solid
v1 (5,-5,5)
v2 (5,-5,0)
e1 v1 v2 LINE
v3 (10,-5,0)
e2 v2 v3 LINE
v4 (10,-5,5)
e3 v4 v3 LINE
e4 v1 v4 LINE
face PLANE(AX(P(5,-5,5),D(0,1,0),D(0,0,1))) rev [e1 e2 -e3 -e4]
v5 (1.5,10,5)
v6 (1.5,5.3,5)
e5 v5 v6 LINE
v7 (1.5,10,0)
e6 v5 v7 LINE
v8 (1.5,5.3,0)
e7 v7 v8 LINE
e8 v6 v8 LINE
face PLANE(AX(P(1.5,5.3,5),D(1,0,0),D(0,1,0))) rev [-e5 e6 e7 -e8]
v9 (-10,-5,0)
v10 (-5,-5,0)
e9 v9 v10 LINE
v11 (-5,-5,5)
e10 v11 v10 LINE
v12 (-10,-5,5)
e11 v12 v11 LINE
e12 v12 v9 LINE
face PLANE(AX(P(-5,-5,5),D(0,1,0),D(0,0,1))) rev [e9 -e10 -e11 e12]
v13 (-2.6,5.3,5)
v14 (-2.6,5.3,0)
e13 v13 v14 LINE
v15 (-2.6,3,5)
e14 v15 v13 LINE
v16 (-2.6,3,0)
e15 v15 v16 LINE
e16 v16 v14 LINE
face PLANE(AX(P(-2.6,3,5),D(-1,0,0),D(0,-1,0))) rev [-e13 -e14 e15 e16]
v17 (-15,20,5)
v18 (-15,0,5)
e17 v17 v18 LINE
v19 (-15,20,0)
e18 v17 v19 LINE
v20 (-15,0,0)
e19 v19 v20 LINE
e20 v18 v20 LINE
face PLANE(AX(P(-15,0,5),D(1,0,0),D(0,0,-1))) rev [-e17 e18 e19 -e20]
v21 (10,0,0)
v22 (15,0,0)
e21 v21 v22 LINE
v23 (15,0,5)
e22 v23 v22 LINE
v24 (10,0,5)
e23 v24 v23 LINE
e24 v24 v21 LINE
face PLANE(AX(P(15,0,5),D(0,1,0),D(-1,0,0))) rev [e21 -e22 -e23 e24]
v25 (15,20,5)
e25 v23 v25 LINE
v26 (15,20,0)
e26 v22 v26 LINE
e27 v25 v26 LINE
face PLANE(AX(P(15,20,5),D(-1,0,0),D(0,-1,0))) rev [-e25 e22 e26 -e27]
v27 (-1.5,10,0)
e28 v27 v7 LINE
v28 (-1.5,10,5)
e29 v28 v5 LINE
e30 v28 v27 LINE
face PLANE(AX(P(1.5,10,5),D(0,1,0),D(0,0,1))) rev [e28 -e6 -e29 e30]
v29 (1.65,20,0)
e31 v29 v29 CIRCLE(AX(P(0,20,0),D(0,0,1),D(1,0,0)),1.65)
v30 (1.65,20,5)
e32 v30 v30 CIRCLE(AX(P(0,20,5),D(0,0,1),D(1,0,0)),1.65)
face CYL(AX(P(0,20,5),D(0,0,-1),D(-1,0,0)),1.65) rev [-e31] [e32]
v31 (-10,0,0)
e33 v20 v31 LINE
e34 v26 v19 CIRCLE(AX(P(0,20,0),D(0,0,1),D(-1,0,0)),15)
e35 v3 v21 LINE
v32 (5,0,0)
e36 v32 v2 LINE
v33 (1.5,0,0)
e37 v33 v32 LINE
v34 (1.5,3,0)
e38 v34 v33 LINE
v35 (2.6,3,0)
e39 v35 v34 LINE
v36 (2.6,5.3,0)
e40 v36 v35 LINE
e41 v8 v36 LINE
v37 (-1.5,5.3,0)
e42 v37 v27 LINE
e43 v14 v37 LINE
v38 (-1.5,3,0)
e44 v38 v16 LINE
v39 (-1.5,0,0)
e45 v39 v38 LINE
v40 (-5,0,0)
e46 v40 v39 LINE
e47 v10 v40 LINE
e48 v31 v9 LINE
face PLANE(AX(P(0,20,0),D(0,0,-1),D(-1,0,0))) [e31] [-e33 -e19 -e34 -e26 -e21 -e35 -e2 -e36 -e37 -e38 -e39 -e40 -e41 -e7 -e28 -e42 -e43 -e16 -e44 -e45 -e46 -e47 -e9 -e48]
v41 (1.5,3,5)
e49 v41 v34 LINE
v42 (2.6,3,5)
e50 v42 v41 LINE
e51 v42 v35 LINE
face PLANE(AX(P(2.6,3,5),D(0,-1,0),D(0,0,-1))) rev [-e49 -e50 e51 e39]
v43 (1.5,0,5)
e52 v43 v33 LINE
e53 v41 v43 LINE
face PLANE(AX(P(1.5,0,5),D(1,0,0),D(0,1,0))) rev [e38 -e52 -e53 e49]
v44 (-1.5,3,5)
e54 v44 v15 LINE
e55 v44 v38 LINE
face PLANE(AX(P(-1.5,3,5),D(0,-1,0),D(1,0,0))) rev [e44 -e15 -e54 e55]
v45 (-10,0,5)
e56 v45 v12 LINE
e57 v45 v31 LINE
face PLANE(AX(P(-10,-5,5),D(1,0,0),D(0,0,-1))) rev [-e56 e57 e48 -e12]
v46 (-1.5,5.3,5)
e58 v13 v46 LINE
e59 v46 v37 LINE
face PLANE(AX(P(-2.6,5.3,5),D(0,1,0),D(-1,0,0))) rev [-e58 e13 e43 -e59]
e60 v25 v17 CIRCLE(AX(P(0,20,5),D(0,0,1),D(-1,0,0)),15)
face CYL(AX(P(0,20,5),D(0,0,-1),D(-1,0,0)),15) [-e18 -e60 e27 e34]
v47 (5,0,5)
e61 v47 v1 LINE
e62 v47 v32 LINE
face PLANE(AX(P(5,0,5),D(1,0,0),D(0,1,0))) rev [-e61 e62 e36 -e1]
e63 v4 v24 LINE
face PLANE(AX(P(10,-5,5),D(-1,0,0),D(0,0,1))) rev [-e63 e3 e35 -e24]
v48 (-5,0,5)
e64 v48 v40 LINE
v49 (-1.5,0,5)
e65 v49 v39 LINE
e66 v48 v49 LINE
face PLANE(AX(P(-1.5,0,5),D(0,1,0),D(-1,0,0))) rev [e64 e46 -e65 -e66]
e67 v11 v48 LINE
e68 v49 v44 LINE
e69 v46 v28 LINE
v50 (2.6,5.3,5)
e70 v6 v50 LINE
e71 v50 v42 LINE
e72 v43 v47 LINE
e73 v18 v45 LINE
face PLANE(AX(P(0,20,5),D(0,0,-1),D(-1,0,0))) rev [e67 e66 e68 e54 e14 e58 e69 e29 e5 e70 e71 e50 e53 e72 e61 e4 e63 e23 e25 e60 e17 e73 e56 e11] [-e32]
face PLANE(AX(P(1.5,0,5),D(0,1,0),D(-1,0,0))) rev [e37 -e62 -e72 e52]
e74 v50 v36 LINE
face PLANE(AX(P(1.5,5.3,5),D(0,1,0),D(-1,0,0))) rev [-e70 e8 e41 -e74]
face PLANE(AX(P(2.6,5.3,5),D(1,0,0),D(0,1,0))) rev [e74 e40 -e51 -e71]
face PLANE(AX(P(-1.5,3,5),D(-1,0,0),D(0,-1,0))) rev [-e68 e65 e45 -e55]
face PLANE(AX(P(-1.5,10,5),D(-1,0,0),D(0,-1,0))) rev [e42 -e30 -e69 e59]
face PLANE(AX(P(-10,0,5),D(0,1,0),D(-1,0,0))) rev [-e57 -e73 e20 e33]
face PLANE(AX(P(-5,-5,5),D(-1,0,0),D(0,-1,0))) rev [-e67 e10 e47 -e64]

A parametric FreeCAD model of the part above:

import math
import FreeCAD as App
import Part
import Sketcher

V = App.Vector

doc = App.newDocument("Part")
params = doc.addObject("Spreadsheet::Sheet", "Params")
for row, (alias, value) in enumerate([
    ("sketch1_radius", "15 mm"),
    ("sketch1_diameter", "3.3 mm"),
    ("sketch1_width", "5 mm"),
    ("sketch1_width2", "3 mm"),
    ("sketch1_height", "20 mm"),
    ("pad1_length", "5 mm"),
], start=1):
    params.set(f"A{row}", alias)
    params.set(f"B{row}", "=" + value)
    params.setAlias(f"B{row}", alias)

body = doc.addObject("PartDesign::Body", "Body")

# Sketch on XY plane
sketch1 = body.newObject("Sketcher::SketchObject", "Sketch")
sketch1.AttachmentSupport = (doc.getObject("XY_Plane"), [""])
sketch1.MapMode = "FlatFace"
sketch1.addGeometry(Part.LineSegment(V(-15, 0, 0), V(-10, 0, 0)), False)
sketch1.addGeometry(Part.LineSegment(V(-10, 0, 0), V(-10, -5, 0)), False)
sketch1.addGeometry(Part.LineSegment(V(-10, -5, 0), V(-5, -5, 0)), False)
sketch1.addGeometry(Part.LineSegment(V(-5, -5, 0), V(-5, 0, 0)), False)
sketch1.addGeometry(Part.LineSegment(V(-5, 0, 0), V(-1.5, 0, 0)), False)
sketch1.addGeometry(Part.LineSegment(V(-1.5, 0, 0), V(-1.5, 3, 0)), False)
sketch1.addGeometry(Part.LineSegment(V(-1.5, 3, 0), V(-2.6, 3, 0)), False)
sketch1.addGeometry(Part.LineSegment(V(-2.6, 3, 0), V(-2.6, 5.3, 0)), False)
sketch1.addGeometry(Part.LineSegment(V(-2.6, 5.3, 0), V(-1.5, 5.3, 0)), False)
sketch1.addGeometry(Part.LineSegment(V(-1.5, 5.3, 0), V(-1.5, 10, 0)), False)
sketch1.addGeometry(Part.LineSegment(V(-1.5, 10, 0), V(1.5, 10, 0)), False)
sketch1.addGeometry(Part.LineSegment(V(1.5, 10, 0), V(1.5, 5.3, 0)), False)
sketch1.addGeometry(Part.LineSegment(V(1.5, 5.3, 0), V(2.6, 5.3, 0)), False)
sketch1.addGeometry(Part.LineSegment(V(2.6, 5.3, 0), V(2.6, 3, 0)), False)
sketch1.addGeometry(Part.LineSegment(V(2.6, 3, 0), V(1.5, 3, 0)), False)
sketch1.addGeometry(Part.LineSegment(V(1.5, 3, 0), V(1.5, 0, 0)), False)
sketch1.addGeometry(Part.LineSegment(V(1.5, 0, 0), V(5, 0, 0)), False)
sketch1.addGeometry(Part.LineSegment(V(5, 0, 0), V(5, -5, 0)), False)
sketch1.addGeometry(Part.LineSegment(V(5, -5, 0), V(10, -5, 0)), False)
sketch1.addGeometry(Part.LineSegment(V(10, -5, 0), V(10, 0, 0)), False)
sketch1.addGeometry(Part.LineSegment(V(10, 0, 0), V(15, 0, 0)), False)
sketch1.addGeometry(Part.LineSegment(V(15, 0, 0), V(15, 20, 0)), False)
sketch1.addGeometry(Part.ArcOfCircle(Part.Circle(V(0, 20, 0), V(0, 0, 1), 15), math.radians(0), math.radians(180)), False)
sketch1.addGeometry(Part.LineSegment(V(-15, 20, 0), V(-15, 0, 0)), False)
sketch1.addGeometry(Part.Circle(V(0, 20, 0), V(0, 0, 1), 1.6), False)
sketch1.addConstraint(Sketcher.Constraint("Coincident", 0, 2, 1, 1))
sketch1.addConstraint(Sketcher.Constraint("Coincident", 1, 2, 2, 1))
sketch1.addConstraint(Sketcher.Constraint("Coincident", 2, 2, 3, 1))
sketch1.addConstraint(Sketcher.Constraint("Coincident", 3, 2, 4, 1))
sketch1.addConstraint(Sketcher.Constraint("Coincident", 4, 2, 5, 1))
sketch1.addConstraint(Sketcher.Constraint("Coincident", 5, 2, 6, 1))
sketch1.addConstraint(Sketcher.Constraint("Coincident", 6, 2, 7, 1))
sketch1.addConstraint(Sketcher.Constraint("Coincident", 7, 2, 8, 1))
sketch1.addConstraint(Sketcher.Constraint("Coincident", 8, 2, 9, 1))
sketch1.addConstraint(Sketcher.Constraint("Coincident", 9, 2, 10, 1))
sketch1.addConstraint(Sketcher.Constraint("Coincident", 10, 2, 11, 1))
sketch1.addConstraint(Sketcher.Constraint("Coincident", 11, 2, 12, 1))
sketch1.addConstraint(Sketcher.Constraint("Coincident", 12, 2, 13, 1))
sketch1.addConstraint(Sketcher.Constraint("Coincident", 13, 2, 14, 1))
sketch1.addConstraint(Sketcher.Constraint("Coincident", 14, 2, 15, 1))
sketch1.addConstraint(Sketcher.Constraint("Coincident", 15, 2, 16, 1))
sketch1.addConstraint(Sketcher.Constraint("Coincident", 16, 2, 17, 1))
sketch1.addConstraint(Sketcher.Constraint("Coincident", 17, 2, 18, 1))
sketch1.addConstraint(Sketcher.Constraint("Coincident", 18, 2, 19, 1))
sketch1.addConstraint(Sketcher.Constraint("Coincident", 19, 2, 20, 1))
sketch1.addConstraint(Sketcher.Constraint("Coincident", 20, 2, 21, 1))
sketch1.addConstraint(Sketcher.Constraint("Tangent", 21, 2, 22, 1))
sketch1.addConstraint(Sketcher.Constraint("Tangent", 22, 2, 23, 1))
sketch1.addConstraint(Sketcher.Constraint("Coincident", 23, 2, 0, 1))
sketch1.addConstraint(Sketcher.Constraint("Horizontal", 0))
sketch1.addConstraint(Sketcher.Constraint("Vertical", 1))
sketch1.addConstraint(Sketcher.Constraint("Horizontal", 2))
sketch1.addConstraint(Sketcher.Constraint("Vertical", 3))
sketch1.addConstraint(Sketcher.Constraint("Horizontal", 4))
sketch1.addConstraint(Sketcher.Constraint("Vertical", 5))
sketch1.addConstraint(Sketcher.Constraint("Horizontal", 6))
sketch1.addConstraint(Sketcher.Constraint("Vertical", 7))
sketch1.addConstraint(Sketcher.Constraint("Horizontal", 8))
sketch1.addConstraint(Sketcher.Constraint("Vertical", 9))
sketch1.addConstraint(Sketcher.Constraint("Horizontal", 10))
sketch1.addConstraint(Sketcher.Constraint("Vertical", 11))
sketch1.addConstraint(Sketcher.Constraint("Horizontal", 12))
sketch1.addConstraint(Sketcher.Constraint("Vertical", 13))
sketch1.addConstraint(Sketcher.Constraint("Horizontal", 14))
sketch1.addConstraint(Sketcher.Constraint("Vertical", 15))
sketch1.addConstraint(Sketcher.Constraint("Horizontal", 16))
sketch1.addConstraint(Sketcher.Constraint("Vertical", 17))
sketch1.addConstraint(Sketcher.Constraint("Horizontal", 18))
sketch1.addConstraint(Sketcher.Constraint("Vertical", 19))
sketch1.addConstraint(Sketcher.Constraint("Horizontal", 20))
sketch1.addConstraint(Sketcher.Constraint("Vertical", 21))
sketch1.addConstraint(Sketcher.Constraint("Vertical", 23))
sketch1.addConstraint(Sketcher.Constraint("Coincident", 24, 3, 22, 3))
sketch1.addConstraint(Sketcher.Constraint("Symmetric", 4, 2, 15, 2, -1, 1))
sketch1.addConstraint(Sketcher.Constraint("Symmetric", 0, 2, 19, 2, -1, 1))
sketch1.addConstraint(Sketcher.Constraint("Symmetric", 8, 2, 11, 2, -2))
sketch1.addConstraint(Sketcher.Constraint("Symmetric", 6, 2, 13, 2, -2))
sketch1.addConstraint(Sketcher.Constraint("Symmetric", 3, 2, 16, 2, -2))
sketch1.addConstraint(Sketcher.Constraint("Symmetric", 20, 2, 23, 2, -2))
sketch1.addConstraint(Sketcher.Constraint("Horizontal", 2, 2, 17, 2))
sketch1.addConstraint(Sketcher.Constraint("Vertical", 5, 2, 8, 2))
sketch1.addConstraint(Sketcher.Constraint("Equal", 0, 2))
sketch1.addConstraint(Sketcher.Constraint("Equal", 20, 1))
sketch1.addConstraint(Sketcher.Constraint("Equal", 10, 5))
sketch1.addConstraint(Sketcher.Constraint("Radius", 22, 15.0))
sketch1.addConstraint(Sketcher.Constraint("Diameter", 24, 3.3))
sketch1.addConstraint(Sketcher.Constraint("DistanceX", 0, 1, 0, 2, 5.0))
sketch1.addConstraint(Sketcher.Constraint("DistanceX", 10, 1, 10, 2, 3.0))
sketch1.addConstraint(Sketcher.Constraint("DistanceY", 21, 1, 21, 2, 20.0))
sketch1.addConstraint(Sketcher.Constraint("DistanceX", 6, 2, 6, 1, 1.1))
sketch1.addConstraint(Sketcher.Constraint("DistanceY", 7, 1, 7, 2, 2.3))
sketch1.addConstraint(Sketcher.Constraint("DistanceY", 9, 1, 9, 2, 4.7))
sketch1.setExpression("Constraints[59]", "Params.sketch1_radius")
sketch1.setExpression("Constraints[60]", "Params.sketch1_diameter")
sketch1.setExpression("Constraints[61]", "Params.sketch1_width")
sketch1.setExpression("Constraints[62]", "Params.sketch1_width2")
sketch1.setExpression("Constraints[63]", "Params.sketch1_height")
pad1 = body.newObject("PartDesign::Pad", "Pad")
pad1.Profile = sketch1
pad1.setExpression("Length", "Params.pad1_length")

doc.recompute()
